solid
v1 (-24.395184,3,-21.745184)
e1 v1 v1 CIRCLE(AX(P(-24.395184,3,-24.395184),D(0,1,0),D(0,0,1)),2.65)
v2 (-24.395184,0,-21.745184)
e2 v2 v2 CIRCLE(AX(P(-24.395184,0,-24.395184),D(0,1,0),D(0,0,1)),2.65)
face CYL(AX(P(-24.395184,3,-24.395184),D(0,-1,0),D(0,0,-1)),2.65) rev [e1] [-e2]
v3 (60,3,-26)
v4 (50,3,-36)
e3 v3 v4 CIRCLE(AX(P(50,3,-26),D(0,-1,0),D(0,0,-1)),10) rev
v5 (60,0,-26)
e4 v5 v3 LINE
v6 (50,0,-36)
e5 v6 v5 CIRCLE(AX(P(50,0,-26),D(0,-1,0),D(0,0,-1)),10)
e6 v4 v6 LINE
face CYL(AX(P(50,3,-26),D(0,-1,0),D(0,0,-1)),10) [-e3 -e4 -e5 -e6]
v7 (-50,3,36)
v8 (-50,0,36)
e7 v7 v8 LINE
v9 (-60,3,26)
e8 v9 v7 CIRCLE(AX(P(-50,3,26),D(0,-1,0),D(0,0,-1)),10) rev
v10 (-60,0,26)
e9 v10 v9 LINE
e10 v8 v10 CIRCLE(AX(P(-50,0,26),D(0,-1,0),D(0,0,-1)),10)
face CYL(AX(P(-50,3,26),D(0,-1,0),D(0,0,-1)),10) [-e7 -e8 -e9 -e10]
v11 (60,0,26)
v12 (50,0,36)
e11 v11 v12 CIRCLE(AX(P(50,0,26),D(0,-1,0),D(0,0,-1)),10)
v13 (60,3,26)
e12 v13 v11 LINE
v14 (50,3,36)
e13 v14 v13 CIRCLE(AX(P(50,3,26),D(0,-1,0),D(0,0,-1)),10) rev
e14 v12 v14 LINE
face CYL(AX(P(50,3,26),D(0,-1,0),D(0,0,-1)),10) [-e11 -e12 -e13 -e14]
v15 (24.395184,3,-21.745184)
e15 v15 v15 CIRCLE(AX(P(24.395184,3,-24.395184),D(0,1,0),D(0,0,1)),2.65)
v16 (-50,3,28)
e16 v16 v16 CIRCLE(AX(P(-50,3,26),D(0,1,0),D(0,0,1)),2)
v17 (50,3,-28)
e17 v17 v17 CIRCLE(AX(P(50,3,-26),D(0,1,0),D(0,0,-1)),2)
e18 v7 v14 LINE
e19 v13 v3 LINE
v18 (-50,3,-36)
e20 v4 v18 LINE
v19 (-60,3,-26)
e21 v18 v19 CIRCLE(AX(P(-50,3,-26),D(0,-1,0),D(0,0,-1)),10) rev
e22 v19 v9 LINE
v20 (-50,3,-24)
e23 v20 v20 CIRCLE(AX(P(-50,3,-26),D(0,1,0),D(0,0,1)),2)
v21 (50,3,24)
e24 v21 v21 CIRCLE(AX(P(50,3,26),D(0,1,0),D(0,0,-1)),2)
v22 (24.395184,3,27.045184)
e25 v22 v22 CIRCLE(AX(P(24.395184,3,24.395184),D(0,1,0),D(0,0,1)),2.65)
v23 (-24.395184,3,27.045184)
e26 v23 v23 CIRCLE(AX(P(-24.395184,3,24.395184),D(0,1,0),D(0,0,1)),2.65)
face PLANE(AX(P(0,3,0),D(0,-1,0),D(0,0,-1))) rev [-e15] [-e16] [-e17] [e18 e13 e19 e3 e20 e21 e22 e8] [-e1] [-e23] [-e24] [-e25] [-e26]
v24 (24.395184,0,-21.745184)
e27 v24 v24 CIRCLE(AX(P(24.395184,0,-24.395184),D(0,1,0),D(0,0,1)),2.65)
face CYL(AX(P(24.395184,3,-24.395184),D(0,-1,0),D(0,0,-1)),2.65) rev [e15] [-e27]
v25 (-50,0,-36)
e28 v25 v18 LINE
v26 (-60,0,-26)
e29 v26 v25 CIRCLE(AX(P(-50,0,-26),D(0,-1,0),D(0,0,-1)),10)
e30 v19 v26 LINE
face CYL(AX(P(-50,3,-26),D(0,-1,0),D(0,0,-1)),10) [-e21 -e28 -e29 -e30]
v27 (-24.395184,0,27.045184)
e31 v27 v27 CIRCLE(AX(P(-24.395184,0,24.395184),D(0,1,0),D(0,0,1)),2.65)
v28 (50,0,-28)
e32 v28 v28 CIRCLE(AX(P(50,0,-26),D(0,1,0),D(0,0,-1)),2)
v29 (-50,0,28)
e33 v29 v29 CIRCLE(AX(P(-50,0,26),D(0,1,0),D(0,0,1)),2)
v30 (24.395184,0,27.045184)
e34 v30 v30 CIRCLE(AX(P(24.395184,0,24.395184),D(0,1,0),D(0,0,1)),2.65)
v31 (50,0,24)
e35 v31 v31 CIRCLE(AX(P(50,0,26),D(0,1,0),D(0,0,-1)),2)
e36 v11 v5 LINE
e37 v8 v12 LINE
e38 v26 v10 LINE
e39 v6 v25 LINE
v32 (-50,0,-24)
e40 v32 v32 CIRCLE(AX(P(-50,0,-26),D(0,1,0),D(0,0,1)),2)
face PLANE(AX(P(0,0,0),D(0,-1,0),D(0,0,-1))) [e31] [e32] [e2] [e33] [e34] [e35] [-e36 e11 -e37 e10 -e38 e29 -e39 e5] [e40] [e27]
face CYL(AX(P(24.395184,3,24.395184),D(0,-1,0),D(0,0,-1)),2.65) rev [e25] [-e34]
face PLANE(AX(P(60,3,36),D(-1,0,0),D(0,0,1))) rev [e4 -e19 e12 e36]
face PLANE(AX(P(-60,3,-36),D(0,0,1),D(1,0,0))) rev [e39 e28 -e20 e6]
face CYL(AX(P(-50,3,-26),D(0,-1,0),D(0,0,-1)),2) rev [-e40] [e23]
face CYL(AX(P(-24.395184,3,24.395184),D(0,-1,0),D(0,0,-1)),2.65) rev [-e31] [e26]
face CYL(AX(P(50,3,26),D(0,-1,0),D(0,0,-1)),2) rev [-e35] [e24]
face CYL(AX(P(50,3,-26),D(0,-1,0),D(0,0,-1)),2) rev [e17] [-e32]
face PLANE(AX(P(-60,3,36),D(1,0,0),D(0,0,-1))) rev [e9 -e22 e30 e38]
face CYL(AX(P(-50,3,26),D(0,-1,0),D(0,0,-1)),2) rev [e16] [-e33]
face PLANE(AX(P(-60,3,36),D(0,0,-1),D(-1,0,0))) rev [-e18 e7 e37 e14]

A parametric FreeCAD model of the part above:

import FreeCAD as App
import Part
import Sketcher
from FreeCAD import Vector
Q = App.Units.Quantity


def edges_at(feature, points):
    """Names of the edges that pass closest to the given points."""
    edges = feature.Shape.Edges
    near = lambda p: min(range(len(edges)), key=lambda i: edges[i].distToShape(Part.Vertex(*p))[0])
    return sorted({f"Edge{near(p) + 1}" for p in points})


def add_polygon(sketch, points):
    """Adds a closed chain of lines whose ends are joined by coincident constraints."""
    first, n = sketch.GeometryCount, len(points)
    for a, b in zip(points, points[1:] + points[:1]):
        sketch.addGeometry(Part.LineSegment(App.Vector(*a, 0), App.Vector(*b, 0)), False)
    for i in range(n):
        sketch.addConstraint(Sketcher.Constraint("Coincident", first + i, 2, first + (i + 1) % n, 1))

doc = App.newDocument("Part")
body = doc.addObject("PartDesign::Body", "Body")

sketch1 = body.newObject("Sketcher::SketchObject", "Sketch")
sketch1.AttachmentSupport = (doc.getObject("XZ_Plane"), [""])
sketch1.MapMode = "FlatFace"
add_polygon(sketch1, [(-60, -36), (-60, 36), (60, 36), (60, -36)])
sketch1.addGeometry(Part.Circle(Vector(-50, 26, 0), Vector(0, 0, 1), 2), False)
sketch1.addGeometry(Part.Circle(Vector(-24.4, 24.4, 0), Vector(0, 0, 1), 2.6), False)
sketch1.addGeometry(Part.Circle(Vector(24.4, 24.4, 0), Vector(0, 0, 1), 2.6), False)
sketch1.addGeometry(Part.Circle(Vector(50, 26, 0), Vector(0, 0, 1), 2), False)
sketch1.addGeometry(Part.Circle(Vector(-50, -26, 0), Vector(0, 0, 1), 2), False)
sketch1.addGeometry(Part.Circle(Vector(-24.4, -24.4, 0), Vector(0, 0, 1), 2.6), False)
sketch1.addGeometry(Part.Circle(Vector(24.4, -24.4, 0), Vector(0, 0, 1), 2.6), False)
sketch1.addGeometry(Part.Circle(Vector(50, -26, 0), Vector(0, 0, 1), 2), False)
sketch1.addConstraint(Sketcher.Constraint("Vertical", 0))
sketch1.addConstraint(Sketcher.Constraint("Horizontal", 1))
sketch1.addConstraint(Sketcher.Constraint("Vertical", 2))
sketch1.addConstraint(Sketcher.Constraint("Horizontal", 3))
sketch1.addConstraint(Sketcher.Constraint("Equal", 5, 6))
sketch1.addConstraint(Sketcher.Constraint("Equal", 4, 7))
sketch1.addConstraint(Sketcher.Constraint("Equal", 7, 8))
sketch1.addConstraint(Sketcher.Constraint("Equal", 6, 9))
sketch1.addConstraint(Sketcher.Constraint("Equal", 9, 10))
sketch1.addConstraint(Sketcher.Constraint("Equal", 8, 11))
sketch1.addConstraint(Sketcher.Constraint("Symmetric", 7, 3, 8, 3, -1, 1))
sketch1.addConstraint(Sketcher.Constraint("Symmetric", 6, 3, 9, 3, -1, 1))
sketch1.addConstraint(Sketcher.Constraint("Symmetric", 5, 3, 10, 3, -1, 1))
sketch1.addConstraint(Sketcher.Constraint("Symmetric", 4, 3, 11, 3, -1, 1))
sketch1.addConstraint(Sketcher.Constraint("Symmetric", 0, 2, 2, 2, -1, 1))
sketch1.addConstraint(Sketcher.Constraint("Symmetric", 5, 3, 6, 3, -2))
sketch1.addConstraint(Sketcher.Constraint("Symmetric", 4, 3, 7, 3, -2))
sketch1.addConstraint(Sketcher.Constraint("Diameter", 4, Q("4 mm")))
sketch1.addConstraint(Sketcher.Constraint("Diameter", 5, Q("5.3 mm")))
sketch1.addConstraint(Sketcher.Constraint("DistanceX", 1, 1, 1, 2, Q("120 mm")))
sketch1.addConstraint(Sketcher.Constraint("DistanceY", 0, 1, 0, 2, Q("72 mm")))
sketch1.addConstraint(Sketcher.Constraint("DistanceX", 4, 3, -1, 1, Q("50 mm")))
sketch1.addConstraint(Sketcher.Constraint("DistanceY", -1, 1, 4, 3, Q("26 mm")))
sketch1.addConstraint(Sketcher.Constraint("DistanceX", 5, 3, -1, 1, Q("24.395184 mm")))
sketch1.addConstraint(Sketcher.Constraint("DistanceY", -1, 1, 5, 3, Q("24.395184 mm")))
pad1 = body.newObject("PartDesign::Pad", "Pad")
pad1.Profile = sketch1
pad1.Length = 3
pad1.Reversed = True
doc.recompute()

fillet = body.newObject("PartDesign::Fillet", "Fillet")
fillet.Base = (pad1, edges_at(pad1, [
    (60, 1.5, 36),
    (-60, 1.5, 36),
    (-60, 1.5, -36),
    (60, 1.5, -36),
]))
fillet.Radius = 10

doc.recompute()
